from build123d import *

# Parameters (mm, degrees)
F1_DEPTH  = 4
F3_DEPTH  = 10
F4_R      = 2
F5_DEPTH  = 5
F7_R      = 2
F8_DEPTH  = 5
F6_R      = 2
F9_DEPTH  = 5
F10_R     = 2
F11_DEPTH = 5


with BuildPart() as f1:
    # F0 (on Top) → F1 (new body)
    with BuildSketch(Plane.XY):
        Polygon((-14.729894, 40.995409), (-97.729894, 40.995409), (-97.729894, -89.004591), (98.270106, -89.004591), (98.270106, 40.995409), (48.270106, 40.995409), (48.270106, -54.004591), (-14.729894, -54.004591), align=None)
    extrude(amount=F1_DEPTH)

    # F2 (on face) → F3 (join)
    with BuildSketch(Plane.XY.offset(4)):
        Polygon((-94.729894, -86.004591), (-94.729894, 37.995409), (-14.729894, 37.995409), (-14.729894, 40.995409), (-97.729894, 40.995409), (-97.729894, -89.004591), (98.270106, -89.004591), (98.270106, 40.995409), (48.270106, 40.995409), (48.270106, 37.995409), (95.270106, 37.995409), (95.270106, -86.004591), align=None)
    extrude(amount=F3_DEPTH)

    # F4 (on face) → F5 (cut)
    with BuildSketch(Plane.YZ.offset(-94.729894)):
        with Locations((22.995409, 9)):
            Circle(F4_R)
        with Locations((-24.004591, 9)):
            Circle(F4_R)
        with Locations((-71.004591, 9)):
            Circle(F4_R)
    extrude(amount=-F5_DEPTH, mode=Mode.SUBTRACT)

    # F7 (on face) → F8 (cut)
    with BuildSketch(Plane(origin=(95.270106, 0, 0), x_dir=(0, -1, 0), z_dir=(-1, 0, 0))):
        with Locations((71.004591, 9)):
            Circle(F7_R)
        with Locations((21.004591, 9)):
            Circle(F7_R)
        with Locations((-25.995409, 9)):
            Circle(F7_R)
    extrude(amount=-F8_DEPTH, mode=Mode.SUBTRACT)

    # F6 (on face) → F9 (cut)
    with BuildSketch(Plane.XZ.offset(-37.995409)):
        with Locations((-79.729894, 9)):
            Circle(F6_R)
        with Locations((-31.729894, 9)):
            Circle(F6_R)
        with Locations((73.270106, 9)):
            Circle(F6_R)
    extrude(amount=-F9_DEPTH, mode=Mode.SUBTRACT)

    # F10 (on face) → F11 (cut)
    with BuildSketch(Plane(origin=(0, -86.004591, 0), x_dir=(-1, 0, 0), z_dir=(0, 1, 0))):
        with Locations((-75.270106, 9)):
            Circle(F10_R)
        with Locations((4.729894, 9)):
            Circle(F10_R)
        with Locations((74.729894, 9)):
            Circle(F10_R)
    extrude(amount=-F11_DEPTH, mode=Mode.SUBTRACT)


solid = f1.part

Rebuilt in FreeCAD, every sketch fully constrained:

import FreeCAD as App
import Part
import Sketcher

V = App.Vector

doc = App.newDocument("Part")
body = doc.addObject("PartDesign::Body", "Body")

sketch1 = body.newObject("Sketcher::SketchObject", "Sketch")
sketch1.AttachmentSupport = (doc.getObject("XY_Plane"), [""])
sketch1.MapMode = "FlatFace"
sketch1.addGeometry([
    Part.LineSegment(V(-15, 41, 0), V(-98, 41, 0)),
    Part.LineSegment(V(-98, 41, 0), V(-98, -89, 0)),
    Part.LineSegment(V(-98, -89, 0), V(98, -89, 0)),
    Part.LineSegment(V(98, -89, 0), V(98, 41, 0)),
    Part.LineSegment(V(98, 41, 0), V(48, 41, 0)),
    Part.LineSegment(V(48, 41, 0), V(48, -54, 0)),
    Part.LineSegment(V(48, -54, 0), V(-15, -54, 0)),
    Part.LineSegment(V(-15, -54, 0), V(-15, 41, 0)),
], False)
sketch1.addConstraint([
    Sketcher.Constraint("Coincident", 0, 2, 1, 1),
    Sketcher.Constraint("Coincident", 1, 2, 2, 1),
    Sketcher.Constraint("Coincident", 2, 2, 3, 1),
    Sketcher.Constraint("Coincident", 3, 2, 4, 1),
    Sketcher.Constraint("Coincident", 4, 2, 5, 1),
    Sketcher.Constraint("Coincident", 5, 2, 6, 1),
    Sketcher.Constraint("Coincident", 6, 2, 7, 1),
    Sketcher.Constraint("Coincident", 7, 2, 0, 1),
    Sketcher.Constraint("Horizontal", 0),
    Sketcher.Constraint("Vertical", 1),
    Sketcher.Constraint("Horizontal", 2),
    Sketcher.Constraint("Vertical", 3),
    Sketcher.Constraint("Horizontal", 4),
    Sketcher.Constraint("Vertical", 5),
    Sketcher.Constraint("Horizontal", 6),
    Sketcher.Constraint("Vertical", 7),
    Sketcher.Constraint("Horizontal", 0, 2, 3, 2),
    Sketcher.Constraint("DistanceX", 0, 2, 0, 1, 83.0),
    Sketcher.Constraint("DistanceX", 2, 1, 2, 2, 196.0),
    Sketcher.Constraint("DistanceX", 4, 2, 4, 1, 50.0),
    Sketcher.Constraint("DistanceY", 1, 2, 1, 1, 130.0),
    Sketcher.Constraint("DistanceY", 5, 2, 5, 1, 95.0),
    Sketcher.Constraint("DistanceY", -1, 1, 0, 2, 40.995409),
    Sketcher.Constraint("DistanceX", 0, 2, -1, 1, 97.729894),
])
pad1 = body.newObject("PartDesign::Pad", "Pad")
pad1.Profile = sketch1
pad1.Length = 4

sketch2 = body.newObject("Sketcher::SketchObject", "Sketch001")
sketch2.AttachmentSupport = (doc.getObject("XY_Plane"), [""])
sketch2.MapMode = "FlatFace"
sketch2.AttachmentOffset = App.Placement(V(0, 0, 4), App.Rotation())
sketch2.addGeometry([
    Part.LineSegment(V(-94.7, -86, 0), V(-94.7, 38, 0)),
    Part.LineSegment(V(-94.7, 38, 0), V(-14.7, 38, 0)),
    Part.LineSegment(V(-14.7, 38, 0), V(-14.7, 41, 0)),
    Part.LineSegment(V(-14.7, 41, 0), V(-97.7, 41, 0)),
    Part.LineSegment(V(-97.7, 41, 0), V(-97.7, -89, 0)),
    Part.LineSegment(V(-97.7, -89, 0), V(98.3, -89, 0)),
    Part.LineSegment(V(98.3, -89, 0), V(98.3, 41, 0)),
    Part.LineSegment(V(98.3, 41, 0), V(48.3, 41, 0)),
    Part.LineSegment(V(48.3, 41, 0), V(48.3, 38, 0)),
    Part.LineSegment(V(48.3, 38, 0), V(95.3, 38, 0)),
    Part.LineSegment(V(95.3, 38, 0), V(95.3, -86, 0)),
    Part.LineSegment(V(95.3, -86, 0), V(-94.7, -86, 0)),
], False)
sketch2.addConstraint([
    Sketcher.Constraint("Coincident", 0, 2, 1, 1),
    Sketcher.Constraint("Coincident", 1, 2, 2, 1),
    Sketcher.Constraint("Coincident", 2, 2, 3, 1),
    Sketcher.Constraint("Coincident", 3, 2, 4, 1),
    Sketcher.Constraint("Coincident", 4, 2, 5, 1),
    Sketcher.Constraint("Coincident", 5, 2, 6, 1),
    Sketcher.Constraint("Coincident", 6, 2, 7, 1),
    Sketcher.Constraint("Coincident", 7, 2, 8, 1),
    Sketcher.Constraint("Coincident", 8, 2, 9, 1),
    Sketcher.Constraint("Coincident", 9, 2, 10, 1),
    Sketcher.Constraint("Coincident", 10, 2, 11, 1),
    Sketcher.Constraint("Coincident", 11, 2, 0, 1),
    Sketcher.Constraint("Vertical", 0),
    Sketcher.Constraint("Horizontal", 1),
    Sketcher.Constraint("Vertical", 2),
    Sketcher.Constraint("Horizontal", 3),
    Sketcher.Constraint("Vertical", 4),
    Sketcher.Constraint("Horizontal", 5),
    Sketcher.Constraint("Vertical", 6),
    Sketcher.Constraint("Horizontal", 7),
    Sketcher.Constraint("Vertical", 8),
    Sketcher.Constraint("Horizontal", 9),
    Sketcher.Constraint("Vertical", 10),
    Sketcher.Constraint("Horizontal", 11),
    Sketcher.Constraint("Horizontal", 3, 2, 6, 2),
    Sketcher.Constraint("Horizontal", 1, 2, 8, 2),
    Sketcher.Constraint("DistanceX", 1, 1, 1, 2, 80.0),
    Sketcher.Constraint("DistanceX", 3, 2, 3, 1, 83.0),
    Sketcher.Constraint("DistanceX", 5, 1, 5, 2, 196.0),
    Sketcher.Constraint("DistanceX", 7, 2, 7, 1, 50.0),
    Sketcher.Constraint("DistanceX", 9, 1, 9, 2, 47.0),
    Sketcher.Constraint("DistanceY", 0, 1, 0, 2, 124.0),
    Sketcher.Constraint("DistanceY", 2, 1, 2, 2, 3.0),
    Sketcher.Constraint("DistanceY", 4, 2, 4, 1, 130.0),
    Sketcher.Constraint("DistanceY", -1, 1, 0, 2, 37.995409),
    Sketcher.Constraint("DistanceX", 0, 2, -1, 1, 94.729894),
])
pad2 = body.newObject("PartDesign::Pad", "Pad001")
pad2.Profile = sketch2
pad2.Length = 10

sketch3 = body.newObject("Sketcher::SketchObject", "Sketch002")
sketch3.AttachmentSupport = (doc.getObject("YZ_Plane"), [""])
sketch3.MapMode = "FlatFace"
sketch3.AttachmentOffset = App.Placement(V(0, 0, -94.729894), App.Rotation())
sketch3.addGeometry([
    Part.Circle(V(23, 9, 0), V(0, 0, 1), 2),
    Part.Circle(V(-24, 9, 0), V(0, 0, 1), 2),
    Part.Circle(V(-71, 9, 0), V(0, 0, 1), 2),
], False)
sketch3.addConstraint([
    Sketcher.Constraint("Equal", 0, 1),
    Sketcher.Constraint("Equal", 1, 2),
    Sketcher.Constraint("Horizontal", 0, 3, 1, 3),
    Sketcher.Constraint("Horizontal", 1, 3, 2, 3),
    Sketcher.Constraint("Diameter", 0, 4.0),
    Sketcher.Constraint("DistanceY", -1, 1, 0, 3, 9.0),
    Sketcher.Constraint("DistanceX", 1, 3, 0, 3, 47.0),
    Sketcher.Constraint("DistanceX", 2, 3, 1, 3, 47.0),
    Sketcher.Constraint("DistanceX", -1, 1, 0, 3, 22.995409),
])
pocket1 = body.newObject("PartDesign::Pocket", "Pocket")
pocket1.Profile = sketch3
pocket1.Length = 5

sketch4 = body.newObject("Sketcher::SketchObject", "Sketch003")
sketch4.AttachmentSupport = (doc.getObject("YZ_Plane"), [""])
sketch4.MapMode = "FlatFace"
sketch4.AttachmentOffset = App.Placement(V(0, 0, 95.270106), App.Rotation())
sketch4.addGeometry([
    Part.Circle(V(-71, 9, 0), V(0, 0, 1), 2),
    Part.Circle(V(-21, 9, 0), V(0, 0, 1), 2),
    Part.Circle(V(26, 9, 0), V(0, 0, 1), 2),
], False)
sketch4.addConstraint([
    Sketcher.Constraint("Equal", 0, 1),
    Sketcher.Constraint("Equal", 1, 2),
    Sketcher.Constraint("Horizontal", 0, 3, 1, 3),
    Sketcher.Constraint("Horizontal", 1, 3, 2, 3),
    Sketcher.Constraint("Diameter", 0, 4.0),
    Sketcher.Constraint("DistanceY", -1, 1, 0, 3, 9.0),
    Sketcher.Constraint("DistanceX", 0, 3, 1, 3, 50.0),
    Sketcher.Constraint("DistanceX", 1, 3, 2, 3, 47.0),
    Sketcher.Constraint("DistanceX", 0, 3, -1, 1, 71.004591),
])
pocket2 = body.newObject("PartDesign::Pocket", "Pocket001")
pocket2.Profile = sketch4
pocket2.Length = 5
pocket2.Reversed = True

sketch5 = body.newObject("Sketcher::SketchObject", "Sketch004")
sketch5.AttachmentSupport = (doc.getObject("XZ_Plane"), [""])
sketch5.MapMode = "FlatFace"
sketch5.AttachmentOffset = App.Placement(V(0, 0, -37.995409), App.Rotation())
sketch5.addGeometry([
    Part.Circle(V(-79.7, 9, 0), V(0, 0, 1), 2),
    Part.Circle(V(-31.7, 9, 0), V(0, 0, 1), 2),
    Part.Circle(V(73.3, 9, 0), V(0, 0, 1), 2),
], False)
sketch5.addConstraint([
    Sketcher.Constraint("Equal", 0, 1),
    Sketcher.Constraint("Equal", 1, 2),
    Sketcher.Constraint("Horizontal", 0, 3, 1, 3),
    Sketcher.Constraint("Horizontal", 1, 3, 2, 3),
    Sketcher.Constraint("Diameter", 0, 4.0),
    Sketcher.Constraint("DistanceY", -1, 1, 0, 3, 9.0),
    Sketcher.Constraint("DistanceX", 0, 3, 1, 3, 48.0),
    Sketcher.Constraint("DistanceX", 1, 3, 2, 3, 105.0),
    Sketcher.Constraint("DistanceX", 0, 3, -1, 1, 79.729894),
])
pocket3 = body.newObject("PartDesign::Pocket", "Pocket002")
pocket3.Profile = sketch5
pocket3.Length = 5

sketch6 = body.newObject("Sketcher::SketchObject", "Sketch005")
sketch6.AttachmentSupport = (doc.getObject("XZ_Plane"), [""])
sketch6.MapMode = "FlatFace"
sketch6.AttachmentOffset = App.Placement(V(0, 0, 86.004591), App.Rotation())
sketch6.addGeometry([
    Part.Circle(V(75.3, 9, 0), V(0, 0, 1), 2),
    Part.Circle(V(-4.7, 9, 0), V(0, 0, 1), 2),
    Part.Circle(V(-74.7, 9, 0), V(0, 0, 1), 2),
], False)
sketch6.addConstraint([
    Sketcher.Constraint("Equal", 0, 1),
    Sketcher.Constraint("Equal", 1, 2),
    Sketcher.Constraint("Horizontal", 0, 3, 1, 3),
    Sketcher.Constraint("Horizontal", 1, 3, 2, 3),
    Sketcher.Constraint("Diameter", 0, 4.0),
    Sketcher.Constraint("DistanceY", -1, 1, 0, 3, 9.0),
    Sketcher.Constraint("DistanceX", 1, 3, 0, 3, 80.0),
    Sketcher.Constraint("DistanceX", 2, 3, 1, 3, 70.0),
    Sketcher.Constraint("DistanceX", -1, 1, 0, 3, 75.270106),
])
pocket4 = body.newObject("PartDesign::Pocket", "Pocket003")
pocket4.Profile = sketch6
pocket4.Length = 5
pocket4.Reversed = True

doc.recompute()
